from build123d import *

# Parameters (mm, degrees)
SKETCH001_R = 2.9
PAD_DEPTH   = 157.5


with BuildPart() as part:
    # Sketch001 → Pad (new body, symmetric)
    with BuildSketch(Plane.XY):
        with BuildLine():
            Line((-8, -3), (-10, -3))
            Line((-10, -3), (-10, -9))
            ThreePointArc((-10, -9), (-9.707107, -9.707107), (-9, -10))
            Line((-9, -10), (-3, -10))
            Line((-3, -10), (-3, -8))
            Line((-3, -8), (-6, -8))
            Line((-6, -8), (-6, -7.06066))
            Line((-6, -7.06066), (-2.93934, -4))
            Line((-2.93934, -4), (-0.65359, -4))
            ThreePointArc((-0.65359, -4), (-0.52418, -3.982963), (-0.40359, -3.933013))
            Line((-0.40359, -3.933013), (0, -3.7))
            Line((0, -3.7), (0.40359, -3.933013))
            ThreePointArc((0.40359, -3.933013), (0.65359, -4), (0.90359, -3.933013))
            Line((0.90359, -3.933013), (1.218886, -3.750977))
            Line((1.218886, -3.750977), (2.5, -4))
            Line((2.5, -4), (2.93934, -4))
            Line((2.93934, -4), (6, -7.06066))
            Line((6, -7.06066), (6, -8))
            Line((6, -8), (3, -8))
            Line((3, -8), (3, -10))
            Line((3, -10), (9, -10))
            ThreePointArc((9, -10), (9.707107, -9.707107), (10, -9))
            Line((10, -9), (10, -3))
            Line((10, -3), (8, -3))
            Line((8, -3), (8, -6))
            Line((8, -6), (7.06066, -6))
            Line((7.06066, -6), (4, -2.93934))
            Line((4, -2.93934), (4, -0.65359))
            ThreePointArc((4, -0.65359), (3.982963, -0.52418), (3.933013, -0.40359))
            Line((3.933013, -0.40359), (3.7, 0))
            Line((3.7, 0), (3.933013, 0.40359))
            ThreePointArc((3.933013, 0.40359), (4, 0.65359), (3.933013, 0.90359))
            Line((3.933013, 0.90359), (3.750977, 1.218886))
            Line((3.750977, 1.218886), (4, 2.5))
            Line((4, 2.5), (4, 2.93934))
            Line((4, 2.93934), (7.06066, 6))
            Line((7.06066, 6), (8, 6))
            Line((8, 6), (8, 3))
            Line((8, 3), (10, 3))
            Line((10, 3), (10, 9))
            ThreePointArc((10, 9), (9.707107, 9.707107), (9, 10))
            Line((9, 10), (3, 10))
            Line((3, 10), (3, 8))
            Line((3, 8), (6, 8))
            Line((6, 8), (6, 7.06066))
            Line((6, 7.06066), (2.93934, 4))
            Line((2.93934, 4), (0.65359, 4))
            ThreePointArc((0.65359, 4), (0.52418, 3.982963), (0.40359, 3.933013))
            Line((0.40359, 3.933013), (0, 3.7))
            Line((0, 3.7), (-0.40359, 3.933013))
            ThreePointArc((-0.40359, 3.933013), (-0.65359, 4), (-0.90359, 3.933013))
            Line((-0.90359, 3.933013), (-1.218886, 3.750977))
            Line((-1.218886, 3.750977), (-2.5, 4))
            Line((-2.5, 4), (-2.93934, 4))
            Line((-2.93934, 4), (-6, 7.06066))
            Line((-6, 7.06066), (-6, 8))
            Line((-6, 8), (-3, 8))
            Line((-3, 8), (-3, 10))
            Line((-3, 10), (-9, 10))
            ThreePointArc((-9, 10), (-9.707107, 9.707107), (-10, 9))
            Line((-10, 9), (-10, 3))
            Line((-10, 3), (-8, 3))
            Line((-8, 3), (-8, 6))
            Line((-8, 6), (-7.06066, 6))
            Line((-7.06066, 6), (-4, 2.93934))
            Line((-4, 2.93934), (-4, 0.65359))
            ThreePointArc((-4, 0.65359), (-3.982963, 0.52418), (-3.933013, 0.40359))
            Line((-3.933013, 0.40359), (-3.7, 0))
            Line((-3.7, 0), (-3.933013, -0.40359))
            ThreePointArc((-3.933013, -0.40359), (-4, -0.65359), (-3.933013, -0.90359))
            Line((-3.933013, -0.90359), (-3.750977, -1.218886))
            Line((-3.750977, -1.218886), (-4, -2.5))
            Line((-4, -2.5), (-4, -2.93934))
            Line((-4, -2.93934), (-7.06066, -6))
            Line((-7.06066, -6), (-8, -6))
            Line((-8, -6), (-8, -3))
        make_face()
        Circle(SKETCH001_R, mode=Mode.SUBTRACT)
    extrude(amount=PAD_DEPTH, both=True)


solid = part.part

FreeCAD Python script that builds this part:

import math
import FreeCAD as App
import Part
import Sketcher

V = App.Vector
Q = App.Units.Quantity

doc = App.newDocument("Part")
body = doc.addObject("PartDesign::Body", "Body")

sketch1 = body.newObject("Sketcher::SketchObject", "Sketch")
sketch1.AttachmentSupport = (doc.getObject("XY_Plane"), [""])
sketch1.MapMode = "FlatFace"
sketch1.addGeometry([
    Part.LineSegment(V(-8, -3, 0), V(-10, -3, 0)),
    Part.LineSegment(V(-10, -3, 0), V(-10, -9, 0)),
    Part.ArcOfCircle(Part.Circle(V(-9.000001, -9.000001, 0), V(0, 0, 1), 0.999999), math.radians(179.999957), math.radians(270.000043)),
    Part.LineSegment(V(-9, -10, 0), V(-3, -10, 0)),
    Part.LineSegment(V(-3, -10, 0), V(-3, -8, 0)),
    Part.LineSegment(V(-3, -8, 0), V(-6, -8, 0)),
    Part.LineSegment(V(-6, -8, 0), V(-6, -7.06066, 0)),
    Part.LineSegment(V(-6, -7.06066, 0), V(-2.93934, -4, 0)),
    Part.LineSegment(V(-2.93934, -4, 0), V(-0.65359, -4, 0)),
    Part.ArcOfCircle(Part.Circle(V(-0.653589, -3.500002, 0), V(0, 0, 1), 0.499998), math.radians(-90.000123), math.radians(-60.000004)),
    Part.LineSegment(V(-0.40359, -3.933013, 0), V(0, -3.7, 0)),
    Part.LineSegment(V(0, -3.7, 0), V(0.40359, -3.933013, 0)),
    Part.ArcOfCircle(Part.Circle(V(0.65359, -3.499998, 0), V(0, 0, 1), 0.500002), math.radians(-119.999873), math.radians(-60.000127)),
    Part.LineSegment(V(0.90359, -3.933013, 0), V(1.218886, -3.750977, 0)),
    Part.LineSegment(V(1.218886, -3.750977, 0), V(2.5, -4, 0)),
    Part.LineSegment(V(2.5, -4, 0), V(2.93934, -4, 0)),
    Part.LineSegment(V(2.93934, -4, 0), V(6, -7.06066, 0)),
    Part.LineSegment(V(6, -7.06066, 0), V(6, -8, 0)),
    Part.LineSegment(V(6, -8, 0), V(3, -8, 0)),
    Part.LineSegment(V(3, -8, 0), V(3, -10, 0)),
    Part.LineSegment(V(3, -10, 0), V(9, -10, 0)),
    Part.ArcOfCircle(Part.Circle(V(9.000001, -9.000001, 0), V(0, 0, 1), 0.999999), math.radians(-90.000043), math.radians(0.000043)),
    Part.LineSegment(V(10, -9, 0), V(10, -3, 0)),
    Part.LineSegment(V(10, -3, 0), V(8, -3, 0)),
    Part.LineSegment(V(8, -3, 0), V(8, -6, 0)),
    Part.LineSegment(V(8, -6, 0), V(7.06066, -6, 0)),
    Part.LineSegment(V(7.06066, -6, 0), V(4, -2.93934, 0)),
    Part.LineSegment(V(4, -2.93934, 0), V(4, -0.65359, 0)),
    Part.ArcOfCircle(Part.Circle(V(3.500002, -0.653589, 0), V(0, 0, 1), 0.499998), math.radians(-0.000123), math.radians(29.999996)),
    Part.LineSegment(V(3.933013, -0.40359, 0), V(3.7, 0, 0)),
    Part.LineSegment(V(3.7, 0, 0), V(3.933013, 0.40359, 0)),
    Part.ArcOfCircle(Part.Circle(V(3.499998, 0.65359, 0), V(0, 0, 1), 0.500002), math.radians(-29.999873), math.radians(29.999873)),
    Part.LineSegment(V(3.933013, 0.90359, 0), V(3.750977, 1.218886, 0)),
    Part.LineSegment(V(3.750977, 1.218886, 0), V(4, 2.5, 0)),
    Part.LineSegment(V(4, 2.5, 0), V(4, 2.93934, 0)),
    Part.LineSegment(V(4, 2.93934, 0), V(7.06066, 6, 0)),
    Part.LineSegment(V(7.06066, 6, 0), V(8, 6, 0)),
    Part.LineSegment(V(8, 6, 0), V(8, 3, 0)),
    Part.LineSegment(V(8, 3, 0), V(10, 3, 0)),
    Part.LineSegment(V(10, 3, 0), V(10, 9, 0)),
    Part.ArcOfCircle(Part.Circle(V(9.000001, 9.000001, 0), V(0, 0, 1), 0.999999), math.radians(-0.000043), math.radians(90.000043)),
    Part.LineSegment(V(9, 10, 0), V(3, 10, 0)),
    Part.LineSegment(V(3, 10, 0), V(3, 8, 0)),
    Part.LineSegment(V(3, 8, 0), V(6, 8, 0)),
    Part.LineSegment(V(6, 8, 0), V(6, 7.06066, 0)),
    Part.LineSegment(V(6, 7.06066, 0), V(2.93934, 4, 0)),
    Part.LineSegment(V(2.93934, 4, 0), V(0.65359, 4, 0)),
    Part.ArcOfCircle(Part.Circle(V(0.653589, 3.500002, 0), V(0, 0, 1), 0.499998), math.radians(89.999877), math.radians(119.999996)),
    Part.LineSegment(V(0.40359, 3.933013, 0), V(0, 3.7, 0)),
    Part.LineSegment(V(0, 3.7, 0), V(-0.40359, 3.933013, 0)),
    Part.ArcOfCircle(Part.Circle(V(-0.65359, 3.499998, 0), V(0, 0, 1), 0.500002), math.radians(60.000127), math.radians(119.999873)),
    Part.LineSegment(V(-0.90359, 3.933013, 0), V(-1.218886, 3.750977, 0)),
    Part.LineSegment(V(-1.218886, 3.750977, 0), V(-2.5, 4, 0)),
    Part.LineSegment(V(-2.5, 4, 0), V(-2.93934, 4, 0)),
    Part.LineSegment(V(-2.93934, 4, 0), V(-6, 7.06066, 0)),
    Part.LineSegment(V(-6, 7.06066, 0), V(-6, 8, 0)),
    Part.LineSegment(V(-6, 8, 0), V(-3, 8, 0)),
    Part.LineSegment(V(-3, 8, 0), V(-3, 10, 0)),
    Part.LineSegment(V(-3, 10, 0), V(-9, 10, 0)),
    Part.ArcOfCircle(Part.Circle(V(-9.000001, 9.000001, 0), V(0, 0, 1), 0.999999), math.radians(89.999957), math.radians(180.000043)),
    Part.LineSegment(V(-10, 9, 0), V(-10, 3, 0)),
    Part.LineSegment(V(-10, 3, 0), V(-8, 3, 0)),
    Part.LineSegment(V(-8, 3, 0), V(-8, 6, 0)),
    Part.LineSegment(V(-8, 6, 0), V(-7.06066, 6, 0)),
    Part.LineSegment(V(-7.06066, 6, 0), V(-4, 2.93934, 0)),
    Part.LineSegment(V(-4, 2.93934, 0), V(-4, 0.65359, 0)),
    Part.ArcOfCircle(Part.Circle(V(-3.500002, 0.653589, 0), V(0, 0, 1), 0.499998), math.radians(179.999877), math.radians(209.999996)),
    Part.LineSegment(V(-3.933013, 0.40359, 0), V(-3.7, 0, 0)),
    Part.LineSegment(V(-3.7, 0, 0), V(-3.933013, -0.40359, 0)),
    Part.ArcOfCircle(Part.Circle(V(-3.499998, -0.65359, 0), V(0, 0, 1), 0.500002), math.radians(150.000127), math.radians(209.999873)),
    Part.LineSegment(V(-3.933013, -0.90359, 0), V(-3.750977, -1.218886, 0)),
    Part.LineSegment(V(-3.750977, -1.218886, 0), V(-4, -2.5, 0)),
    Part.LineSegment(V(-4, -2.5, 0), V(-4, -2.93934, 0)),
    Part.LineSegment(V(-4, -2.93934, 0), V(-7.06066, -6, 0)),
    Part.LineSegment(V(-7.06066, -6, 0), V(-8, -6, 0)),
    Part.LineSegment(V(-8, -6, 0), V(-8, -3, 0)),
    Part.Circle(V(0, 0, 0), V(0, 0, 1), 2.9),
], False)
sketch1.addConstraint([
    Sketcher.Constraint("Coincident", 0, 2, 1, 1),
    Sketcher.Constraint("Tangent", 1, 2, 2, 1),
    Sketcher.Constraint("Tangent", 2, 2, 3, 1),
    Sketcher.Constraint("Coincident", 3, 2, 4, 1),
    Sketcher.Constraint("Coincident", 4, 2, 5, 1),
    Sketcher.Constraint("Coincident", 5, 2, 6, 1),
    Sketcher.Constraint("Coincident", 6, 2, 7, 1),
    Sketcher.Constraint("Coincident", 7, 2, 8, 1),
    Sketcher.Constraint("Coincident", 8, 2, 9, 1),
    Sketcher.Constraint("Tangent", 9, 2, 10, 1),
    Sketcher.Constraint("Coincident", 10, 2, 11, 1),
    Sketcher.Constraint("Coincident", 11, 2, 12, 1),
    Sketcher.Constraint("Tangent", 12, 2, 13, 1),
    Sketcher.Constraint("Coincident", 13, 2, 14, 1),
    Sketcher.Constraint("Coincident", 14, 2, 15, 1),
    Sketcher.Constraint("Coincident", 15, 2, 16, 1),
    Sketcher.Constraint("Coincident", 16, 2, 17, 1),
    Sketcher.Constraint("Coincident", 17, 2, 18, 1),
    Sketcher.Constraint("Coincident", 18, 2, 19, 1),
    Sketcher.Constraint("Coincident", 19, 2, 20, 1),
    Sketcher.Constraint("Tangent", 20, 2, 21, 1),
    Sketcher.Constraint("Tangent", 21, 2, 22, 1),
    Sketcher.Constraint("Coincident", 22, 2, 23, 1),
    Sketcher.Constraint("Coincident", 23, 2, 24, 1),
    Sketcher.Constraint("Coincident", 24, 2, 25, 1),
    Sketcher.Constraint("Coincident", 25, 2, 26, 1),
    Sketcher.Constraint("Coincident", 26, 2, 27, 1),
    Sketcher.Constraint("Coincident", 27, 2, 28, 1),
    Sketcher.Constraint("Tangent", 28, 2, 29, 1),
    Sketcher.Constraint("Coincident", 29, 2, 30, 1),
    Sketcher.Constraint("Coincident", 30, 2, 31, 1),
    Sketcher.Constraint("Tangent", 31, 2, 32, 1),
    Sketcher.Constraint("Coincident", 32, 2, 33, 1),
    Sketcher.Constraint("Coincident", 33, 2, 34, 1),
    Sketcher.Constraint("Coincident", 34, 2, 35, 1),
    Sketcher.Constraint("Coincident", 35, 2, 36, 1),
    Sketcher.Constraint("Coincident", 36, 2, 37, 1),
    Sketcher.Constraint("Coincident", 37, 2, 38, 1),
    Sketcher.Constraint("Coincident", 38, 2, 39, 1),
    Sketcher.Constraint("Tangent", 39, 2, 40, 1),
    Sketcher.Constraint("Tangent", 40, 2, 41, 1),
    Sketcher.Constraint("Coincident", 41, 2, 42, 1),
    Sketcher.Constraint("Coincident", 42, 2, 43, 1),
    Sketcher.Constraint("Coincident", 43, 2, 44, 1),
    Sketcher.Constraint("Coincident", 44, 2, 45, 1),
    Sketcher.Constraint("Coincident", 45, 2, 46, 1),
    Sketcher.Constraint("Coincident", 46, 2, 47, 1),
    Sketcher.Constraint("Tangent", 47, 2, 48, 1),
    Sketcher.Constraint("Coincident", 48, 2, 49, 1),
    Sketcher.Constraint("Coincident", 49, 2, 50, 1),
    Sketcher.Constraint("Tangent", 50, 2, 51, 1),
    Sketcher.Constraint("Coincident", 51, 2, 52, 1),
    Sketcher.Constraint("Coincident", 52, 2, 53, 1),
    Sketcher.Constraint("Coincident", 53, 2, 54, 1),
    Sketcher.Constraint("Coincident", 54, 2, 55, 1),
    Sketcher.Constraint("Coincident", 55, 2, 56, 1),
    Sketcher.Constraint("Coincident", 56, 2, 57, 1),
    Sketcher.Constraint("Coincident", 57, 2, 58, 1),
    Sketcher.Constraint("Tangent", 58, 2, 59, 1),
    Sketcher.Constraint("Tangent", 59, 2, 60, 1),
    Sketcher.Constraint("Coincident", 60, 2, 61, 1),
    Sketcher.Constraint("Coincident", 61, 2, 62, 1),
    Sketcher.Constraint("Coincident", 62, 2, 63, 1),
    Sketcher.Constraint("Coincident", 63, 2, 64, 1),
    Sketcher.Constraint("Coincident", 64, 2, 65, 1),
    Sketcher.Constraint("Coincident", 65, 2, 66, 1),
    Sketcher.Constraint("Tangent", 66, 2, 67, 1),
    Sketcher.Constraint("Coincident", 67, 2, 68, 1),
    Sketcher.Constraint("Coincident", 68, 2, 69, 1),
    Sketcher.Constraint("Tangent", 69, 2, 70, 1),
    Sketcher.Constraint("Coincident", 70, 2, 71, 1),
    Sketcher.Constraint("Coincident", 71, 2, 72, 1),
    Sketcher.Constraint("Coincident", 72, 2, 73, 1),
    Sketcher.Constraint("Coincident", 73, 2, 74, 1),
    Sketcher.Constraint("Coincident", 74, 2, 75, 1),
    Sketcher.Constraint("Coincident", 75, 2, 0, 1),
    Sketcher.Constraint("Horizontal", 0),
    Sketcher.Constraint("Vertical", 1),
    Sketcher.Constraint("Horizontal", 3),
    Sketcher.Constraint("Vertical", 4),
    Sketcher.Constraint("Horizontal", 5),
    Sketcher.Constraint("Vertical", 6),
    Sketcher.Constraint("Horizontal", 8),
    Sketcher.Constraint("Horizontal", 15),
    Sketcher.Constraint("Vertical", 17),
    Sketcher.Constraint("Horizontal", 18),
    Sketcher.Constraint("Vertical", 19),
    Sketcher.Constraint("Horizontal", 20),
    Sketcher.Constraint("Vertical", 22),
    Sketcher.Constraint("Horizontal", 23),
    Sketcher.Constraint("Vertical", 24),
    Sketcher.Constraint("Horizontal", 25),
    Sketcher.Constraint("Vertical", 27),
    Sketcher.Constraint("Vertical", 34),
    Sketcher.Constraint("Horizontal", 36),
    Sketcher.Constraint("Vertical", 37),
    Sketcher.Constraint("Horizontal", 38),
    Sketcher.Constraint("Vertical", 39),
    Sketcher.Constraint("Horizontal", 41),
    Sketcher.Constraint("Vertical", 42),
    Sketcher.Constraint("Horizontal", 43),
    Sketcher.Constraint("Vertical", 44),
    Sketcher.Constraint("Horizontal", 46),
    Sketcher.Constraint("Horizontal", 53),
    Sketcher.Constraint("Vertical", 55),
    Sketcher.Constraint("Horizontal", 56),
    Sketcher.Constraint("Vertical", 57),
    Sketcher.Constraint("Horizontal", 58),
    Sketcher.Constraint("Vertical", 60),
    Sketcher.Constraint("Horizontal", 61),
    Sketcher.Constraint("Vertical", 62),
    Sketcher.Constraint("Horizontal", 63),
    Sketcher.Constraint("Vertical", 65),
    Sketcher.Constraint("Vertical", 72),
    Sketcher.Constraint("Horizontal", 74),
    Sketcher.Constraint("Vertical", 75),
    Sketcher.Constraint("Coincident", 76, 3, -1, 1),
    Sketcher.Constraint("Equal", 2, 21),
    Sketcher.Constraint("Equal", 9, 28),
    Sketcher.Constraint("Equal", 12, 31),
    Sketcher.Constraint("Equal", 21, 40),
    Sketcher.Constraint("Equal", 28, 47),
    Sketcher.Constraint("Equal", 31, 50),
    Sketcher.Constraint("Equal", 40, 59),
    Sketcher.Constraint("Equal", 47, 66),
    Sketcher.Constraint("Equal", 50, 69),
    Sketcher.Constraint("Symmetric", 2, 3, 40, 3, -1, 1),
    Sketcher.Constraint("Symmetric", 9, 3, 47, 3, -1, 1),
    Sketcher.Constraint("Symmetric", 12, 3, 50, 3, -1, 1),
    Sketcher.Constraint("Symmetric", 21, 3, 59, 3, -1, 1),
    Sketcher.Constraint("Symmetric", 28, 3, 66, 3, -1, 1),
    Sketcher.Constraint("Symmetric", 31, 3, 69, 3, -1, 1),
    Sketcher.Constraint("Symmetric", 4, 2, 42, 2, -1, 1),
    Sketcher.Constraint("Symmetric", 6, 2, 44, 2, -1, 1),
    Sketcher.Constraint("Symmetric", 10, 2, 48, 2, -1, 1),
    Sketcher.Constraint("Symmetric", 13, 2, 51, 2, -1, 1),
    Sketcher.Constraint("Symmetric", 14, 2, 52, 2, -1, 1),
    Sketcher.Constraint("Symmetric", 16, 2, 54, 2, -1, 1),
    Sketcher.Constraint("Symmetric", 18, 2, 56, 2, -1, 1),
    Sketcher.Constraint("Symmetric", 23, 2, 61, 2, -1, 1),
    Sketcher.Constraint("Symmetric", 25, 2, 63, 2, -1, 1),
    Sketcher.Constraint("Symmetric", 29, 2, 67, 2, -1, 1),
    Sketcher.Constraint("Symmetric", 32, 2, 70, 2, -1, 1),
    Sketcher.Constraint("Symmetric", 33, 2, 71, 2, -1, 1),
    Sketcher.Constraint("Symmetric", 35, 2, 73, 2, -1, 1),
    Sketcher.Constraint("Symmetric", 37, 2, 75, 2, -1, 1),
    Sketcher.Constraint("Symmetric", 9, 3, 12, 3, -2),
    Sketcher.Constraint("Symmetric", 2, 3, 21, 3, -2),
    Sketcher.Constraint("Symmetric", 31, 3, 66, 3, -2),
    Sketcher.Constraint("Symmetric", 9, 2, 11, 2, -2),
    Sketcher.Constraint("Symmetric", 7, 2, 15, 2, -2),
    Sketcher.Constraint("Symmetric", 6, 2, 16, 2, -2),
    Sketcher.Constraint("Symmetric", 4, 2, 18, 2, -2),
    Sketcher.Constraint("Symmetric", 37, 2, 61, 2, -2),
    Sketcher.Constraint("Symmetric", 35, 2, 63, 2, -2),
    Sketcher.Constraint("Symmetric", 34, 2, 64, 2, -2),
    Sketcher.Constraint("PointOnObject", 10, 2, -2),
    Sketcher.Constraint("PointOnObject", 29, 2, -1),
    Sketcher.Constraint("Parallel", 10, 13),
    Sketcher.Constraint("Perpendicular", 7, 16),
    Sketcher.Constraint("Parallel", 16, 26),
    Sketcher.Constraint("Perpendicular", 13, 29),
    Sketcher.Constraint("Parallel", 29, 32),
    Sketcher.Constraint("Perpendicular", 14, 33),
    Sketcher.Constraint("Perpendicular", 26, 35),
    Sketcher.Constraint("Parallel", 35, 45),
    Sketcher.Constraint("Perpendicular", 45, 54),
    Sketcher.Constraint("Perpendicular", 64, 73),
    Sketcher.Constraint("Horizontal", 69, 3, 27, 2),
    Sketcher.Constraint("Horizontal", 47, 2, 49, 2),
    Sketcher.Constraint("Horizontal", 66, 3, 65, 2),
    Sketcher.Constraint("Horizontal", 30, 2, 66, 2),
    Sketcher.Constraint("Horizontal", 28, 2, 68, 2),
    Sketcher.Constraint("Vertical", 50, 3, 8, 2),
    Sketcher.Constraint("Vertical", 47, 3, 46, 2),
    Sketcher.Constraint("Equal", 58, 1),
    Sketcher.Constraint("Equal", 61, 4),
    Sketcher.Constraint("Equal", 74, 6),
    Sketcher.Constraint("Equal", 56, 24),
    Sketcher.Constraint("Equal", 46, 27),
    Sketcher.Constraint("Equal", 53, 34),
    Sketcher.Constraint("Equal", 16, 26),
    Sketcher.Constraint("Equal", 11, 29),
    Sketcher.Constraint("Radius", 2, Q("0.999999 mm")),
    Sketcher.Constraint("Diameter", 76, Q("5.8 mm")),
    Sketcher.Constraint("Radius", 12, Q("0.500002 mm")),
    Sketcher.Constraint("DistanceX", 0, 2, 0, 1, Q("2 mm")),
    Sketcher.Constraint("DistanceX", 3, 1, 3, 2, Q("6 mm")),
    Sketcher.Constraint("DistanceX", 5, 2, 5, 1, Q("3 mm")),
    Sketcher.Constraint("Angle", 14, Q("-10.999986 deg")),
    Sketcher.Constraint("DistanceX", 2, 3, -1, 1, Q("9.000001 mm")),
    Sketcher.Constraint("DistanceY", 7, 2, -1, 1, Q("4 mm")),
    Sketcher.Constraint("DistanceY", 10, 2, -1, 1, Q("3.7 mm")),
    Sketcher.Constraint("DistanceX", -1, 1, 14, 2, Q("2.5 mm")),
    Sketcher.Constraint("DistanceX", 8, 1, 8, 2, Q("2.28575 mm")),
    Sketcher.Constraint("DistanceX", 15, 1, 15, 2, Q("0.43934 mm")),
])
pad1 = body.newObject("PartDesign::Pad", "Pad")
pad1.Profile = sketch1
pad1.Length = 315
pad1.Midplane = True

doc.recompute()
